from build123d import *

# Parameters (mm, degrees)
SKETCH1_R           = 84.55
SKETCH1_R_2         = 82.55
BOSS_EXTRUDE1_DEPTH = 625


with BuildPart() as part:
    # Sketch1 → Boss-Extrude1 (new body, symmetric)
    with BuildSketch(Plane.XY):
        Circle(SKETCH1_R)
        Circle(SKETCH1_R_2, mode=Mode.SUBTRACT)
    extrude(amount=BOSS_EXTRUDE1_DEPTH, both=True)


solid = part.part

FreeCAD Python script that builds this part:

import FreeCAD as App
import Part
import Sketcher

V = App.Vector

doc = App.newDocument("Part")
body = doc.addObject("PartDesign::Body", "Body")

# Sketch on XY plane
sketch1 = doc.addObject("Sketcher::SketchObject", "Sketch")
body.addObject(sketch1)
sketch1.AttachmentSupport = (doc.XY_Plane, [""])
sketch1.MapMode = "FlatFace"
sketch1.addGeometry([
    Part.Circle(V(0, 0, 0), V(0, 0, 1), 85),
    Part.Circle(V(0, 0, 0), V(0, 0, 1), 83),
], False)
sketch1.addConstraint([
    Sketcher.Constraint("Coincident", 0, 3, -1, 1),
    Sketcher.Constraint("Coincident", 1, 3, -1, 1),
    Sketcher.Constraint("Diameter", 0, 169.1),
    Sketcher.Constraint("Diameter", 1, 165.1),
])
pad1 = doc.addObject("PartDesign::Pad", "Pad")
body.addObject(pad1)
pad1.Profile = sketch1
pad1.Length = 1250
pad1.Midplane = True

doc.recompute()
